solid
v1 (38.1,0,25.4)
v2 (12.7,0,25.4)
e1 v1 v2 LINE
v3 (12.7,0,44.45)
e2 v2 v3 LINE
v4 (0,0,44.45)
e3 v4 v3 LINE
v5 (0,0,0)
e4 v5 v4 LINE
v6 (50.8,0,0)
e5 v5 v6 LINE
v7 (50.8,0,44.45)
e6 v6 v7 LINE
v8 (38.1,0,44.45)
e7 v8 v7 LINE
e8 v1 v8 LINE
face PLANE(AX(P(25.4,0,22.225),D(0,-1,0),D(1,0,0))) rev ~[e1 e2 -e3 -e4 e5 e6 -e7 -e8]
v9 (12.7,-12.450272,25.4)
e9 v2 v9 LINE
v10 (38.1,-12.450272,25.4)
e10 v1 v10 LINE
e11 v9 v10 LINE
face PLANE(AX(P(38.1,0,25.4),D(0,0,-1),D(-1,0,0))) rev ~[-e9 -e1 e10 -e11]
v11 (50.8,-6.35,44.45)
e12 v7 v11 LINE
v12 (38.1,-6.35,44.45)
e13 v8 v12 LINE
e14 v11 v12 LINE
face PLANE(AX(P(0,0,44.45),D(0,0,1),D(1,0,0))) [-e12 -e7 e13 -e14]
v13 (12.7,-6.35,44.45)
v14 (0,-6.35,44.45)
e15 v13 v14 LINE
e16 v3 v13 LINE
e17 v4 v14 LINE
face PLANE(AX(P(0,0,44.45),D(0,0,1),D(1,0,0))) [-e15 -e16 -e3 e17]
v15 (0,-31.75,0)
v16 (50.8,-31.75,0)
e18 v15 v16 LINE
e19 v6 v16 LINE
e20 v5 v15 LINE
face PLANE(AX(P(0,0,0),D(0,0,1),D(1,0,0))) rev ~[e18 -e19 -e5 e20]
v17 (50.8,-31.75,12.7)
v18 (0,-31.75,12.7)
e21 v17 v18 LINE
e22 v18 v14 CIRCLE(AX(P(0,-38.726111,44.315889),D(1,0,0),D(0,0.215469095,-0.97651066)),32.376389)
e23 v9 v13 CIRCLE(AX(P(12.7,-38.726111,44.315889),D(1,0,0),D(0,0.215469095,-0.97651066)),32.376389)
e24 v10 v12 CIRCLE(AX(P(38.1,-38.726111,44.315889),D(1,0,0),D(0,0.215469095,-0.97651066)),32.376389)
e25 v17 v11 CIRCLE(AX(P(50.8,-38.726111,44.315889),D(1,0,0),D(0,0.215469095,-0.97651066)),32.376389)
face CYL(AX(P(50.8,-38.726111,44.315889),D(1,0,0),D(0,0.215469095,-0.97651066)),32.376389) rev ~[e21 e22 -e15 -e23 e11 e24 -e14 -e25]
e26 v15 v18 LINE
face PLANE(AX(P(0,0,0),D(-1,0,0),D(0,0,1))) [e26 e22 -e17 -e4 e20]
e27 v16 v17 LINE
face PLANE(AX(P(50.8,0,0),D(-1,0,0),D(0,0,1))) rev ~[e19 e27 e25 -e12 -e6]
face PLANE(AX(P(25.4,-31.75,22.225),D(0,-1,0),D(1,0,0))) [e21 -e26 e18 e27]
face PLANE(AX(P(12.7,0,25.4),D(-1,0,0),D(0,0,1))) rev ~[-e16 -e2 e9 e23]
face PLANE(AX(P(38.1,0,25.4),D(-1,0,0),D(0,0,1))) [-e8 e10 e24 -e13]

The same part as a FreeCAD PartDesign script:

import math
import FreeCAD as App
import Part
import Sketcher
Q = App.Units.Quantity


def add_polygon(sketch, points):
    """Adds a closed chain of lines whose ends are joined by coincident constraints."""
    first, n = sketch.GeometryCount, len(points)
    for a, b in zip(points, points[1:] + points[:1]):
        sketch.addGeometry(Part.LineSegment(App.Vector(*a, 0), App.Vector(*b, 0)), False)
    for i in range(n):
        sketch.addConstraint(Sketcher.Constraint("Coincident", first + i, 2, first + (i + 1) % n, 1))

doc = App.newDocument("Part")
body = doc.addObject("PartDesign::Body", "Body")

# Sketch on XZ plane
sketch1 = doc.addObject("Sketcher::SketchObject", "Sketch")
body.addObject(sketch1)
sketch1.AttachmentSupport = (doc.XZ_Plane, [""])
sketch1.MapMode = "FlatFace"
add_polygon(sketch1, [(0, 44), (0, 0), (51, 0), (51, 44)])  # lines 0-3
sketch1.addConstraint(Sketcher.Constraint("Vertical", 0))
sketch1.addConstraint(Sketcher.Constraint("Horizontal", 1))
sketch1.addConstraint(Sketcher.Constraint("Vertical", 2))
sketch1.addConstraint(Sketcher.Constraint("Horizontal", 3))
sketch1.addConstraint(Sketcher.Constraint("Coincident", 0, 2, -1, 1))
sketch1.addConstraint(Sketcher.Constraint("DistanceX", 1, 1, 1, 2, Q("2 in")))
sketch1.addConstraint(Sketcher.Constraint("DistanceY", 0, 2, 0, 1, Q("1.75 in")))
pad1 = doc.addObject("PartDesign::Pad", "Pad")
body.addObject(pad1)
pad1.Profile = sketch1
pad1.Length = Q("1.25 in")

# Sketch on YZ plane
sketch2 = doc.addObject("Sketcher::SketchObject", "Sketch001")
body.addObject(sketch2)
sketch2.AttachmentSupport = (doc.YZ_Plane, [""])
sketch2.MapMode = "FlatFace"
sketch2.AttachmentOffset = App.Placement(App.Vector(0, 0, 2 * 25.4), App.Rotation())
sketch2.addGeometry(Part.LineSegment(App.Vector(-32, 44, 0), App.Vector(-32, 13, 0)), False)
sketch2.addGeometry(Part.ArcOfCircle(Part.Circle(App.Vector(-39, 44, 0), App.Vector(0, 0, 1), 32), math.radians(-78), math.radians(0)), False)
sketch2.addGeometry(Part.LineSegment(App.Vector(-6, 44, 0), App.Vector(-32, 44, 0)), False)
sketch2.addConstraint(Sketcher.Constraint("Coincident", 0, 2, 1, 1))
sketch2.addConstraint(Sketcher.Constraint("Coincident", 1, 2, 2, 1))
sketch2.addConstraint(Sketcher.Constraint("Coincident", 2, 2, 0, 1))
sketch2.addConstraint(Sketcher.Constraint("Vertical", 0))
sketch2.addConstraint(Sketcher.Constraint("Horizontal", 2))
sketch2.addConstraint(Sketcher.Constraint("DistanceX", 2, 2, 2, 1, Q("1 in")))
sketch2.addConstraint(Sketcher.Constraint("DistanceY", 0, 2, 0, 1, Q("1.25 in")))
sketch2.addConstraint(Sketcher.Constraint("DistanceY", -1, 1, 0, 2, Q("0.5 in")))
sketch2.addConstraint(Sketcher.Constraint("DistanceX", 0, 2, -1, 1, Q("1.25 in")))
sketch2.addConstraint(Sketcher.Constraint("Radius", 1, 32.376389))
pocket1 = doc.addObject("PartDesign::Pocket", "Pocket")
body.addObject(pocket1)
pocket1.Profile = sketch2
pocket1.Length = Q("3 in")

# Sketch on XZ plane
sketch3 = doc.addObject("Sketcher::SketchObject", "Sketch002")
body.addObject(sketch3)
sketch3.AttachmentSupport = (doc.XZ_Plane, [""])
sketch3.MapMode = "FlatFace"
add_polygon(sketch3, [(38, 44), (38, 25), (13, 25), (13, 44)])  # lines 0-3
sketch3.addConstraint(Sketcher.Constraint("Vertical", 0))
sketch3.addConstraint(Sketcher.Constraint("Horizontal", 1))
sketch3.addConstraint(Sketcher.Constraint("Vertical", 2))
sketch3.addConstraint(Sketcher.Constraint("Horizontal", 3))
sketch3.addConstraint(Sketcher.Constraint("DistanceX", 1, 2, 1, 1, Q("1 in")))
sketch3.addConstraint(Sketcher.Constraint("DistanceY", -1, 1, 0, 2, Q("1 in")))
sketch3.addConstraint(Sketcher.Constraint("DistanceY", 0, 2, 0, 1, Q("0.75 in")))
sketch3.addConstraint(Sketcher.Constraint("DistanceX", -1, 1, 0, 2, Q("1.5 in")))
pocket2 = doc.addObject("PartDesign::Pocket", "Pocket001")
body.addObject(pocket2)
pocket2.Profile = sketch3
pocket2.Length = Q("1 in")
pocket2.Reversed = True

doc.recompute()
